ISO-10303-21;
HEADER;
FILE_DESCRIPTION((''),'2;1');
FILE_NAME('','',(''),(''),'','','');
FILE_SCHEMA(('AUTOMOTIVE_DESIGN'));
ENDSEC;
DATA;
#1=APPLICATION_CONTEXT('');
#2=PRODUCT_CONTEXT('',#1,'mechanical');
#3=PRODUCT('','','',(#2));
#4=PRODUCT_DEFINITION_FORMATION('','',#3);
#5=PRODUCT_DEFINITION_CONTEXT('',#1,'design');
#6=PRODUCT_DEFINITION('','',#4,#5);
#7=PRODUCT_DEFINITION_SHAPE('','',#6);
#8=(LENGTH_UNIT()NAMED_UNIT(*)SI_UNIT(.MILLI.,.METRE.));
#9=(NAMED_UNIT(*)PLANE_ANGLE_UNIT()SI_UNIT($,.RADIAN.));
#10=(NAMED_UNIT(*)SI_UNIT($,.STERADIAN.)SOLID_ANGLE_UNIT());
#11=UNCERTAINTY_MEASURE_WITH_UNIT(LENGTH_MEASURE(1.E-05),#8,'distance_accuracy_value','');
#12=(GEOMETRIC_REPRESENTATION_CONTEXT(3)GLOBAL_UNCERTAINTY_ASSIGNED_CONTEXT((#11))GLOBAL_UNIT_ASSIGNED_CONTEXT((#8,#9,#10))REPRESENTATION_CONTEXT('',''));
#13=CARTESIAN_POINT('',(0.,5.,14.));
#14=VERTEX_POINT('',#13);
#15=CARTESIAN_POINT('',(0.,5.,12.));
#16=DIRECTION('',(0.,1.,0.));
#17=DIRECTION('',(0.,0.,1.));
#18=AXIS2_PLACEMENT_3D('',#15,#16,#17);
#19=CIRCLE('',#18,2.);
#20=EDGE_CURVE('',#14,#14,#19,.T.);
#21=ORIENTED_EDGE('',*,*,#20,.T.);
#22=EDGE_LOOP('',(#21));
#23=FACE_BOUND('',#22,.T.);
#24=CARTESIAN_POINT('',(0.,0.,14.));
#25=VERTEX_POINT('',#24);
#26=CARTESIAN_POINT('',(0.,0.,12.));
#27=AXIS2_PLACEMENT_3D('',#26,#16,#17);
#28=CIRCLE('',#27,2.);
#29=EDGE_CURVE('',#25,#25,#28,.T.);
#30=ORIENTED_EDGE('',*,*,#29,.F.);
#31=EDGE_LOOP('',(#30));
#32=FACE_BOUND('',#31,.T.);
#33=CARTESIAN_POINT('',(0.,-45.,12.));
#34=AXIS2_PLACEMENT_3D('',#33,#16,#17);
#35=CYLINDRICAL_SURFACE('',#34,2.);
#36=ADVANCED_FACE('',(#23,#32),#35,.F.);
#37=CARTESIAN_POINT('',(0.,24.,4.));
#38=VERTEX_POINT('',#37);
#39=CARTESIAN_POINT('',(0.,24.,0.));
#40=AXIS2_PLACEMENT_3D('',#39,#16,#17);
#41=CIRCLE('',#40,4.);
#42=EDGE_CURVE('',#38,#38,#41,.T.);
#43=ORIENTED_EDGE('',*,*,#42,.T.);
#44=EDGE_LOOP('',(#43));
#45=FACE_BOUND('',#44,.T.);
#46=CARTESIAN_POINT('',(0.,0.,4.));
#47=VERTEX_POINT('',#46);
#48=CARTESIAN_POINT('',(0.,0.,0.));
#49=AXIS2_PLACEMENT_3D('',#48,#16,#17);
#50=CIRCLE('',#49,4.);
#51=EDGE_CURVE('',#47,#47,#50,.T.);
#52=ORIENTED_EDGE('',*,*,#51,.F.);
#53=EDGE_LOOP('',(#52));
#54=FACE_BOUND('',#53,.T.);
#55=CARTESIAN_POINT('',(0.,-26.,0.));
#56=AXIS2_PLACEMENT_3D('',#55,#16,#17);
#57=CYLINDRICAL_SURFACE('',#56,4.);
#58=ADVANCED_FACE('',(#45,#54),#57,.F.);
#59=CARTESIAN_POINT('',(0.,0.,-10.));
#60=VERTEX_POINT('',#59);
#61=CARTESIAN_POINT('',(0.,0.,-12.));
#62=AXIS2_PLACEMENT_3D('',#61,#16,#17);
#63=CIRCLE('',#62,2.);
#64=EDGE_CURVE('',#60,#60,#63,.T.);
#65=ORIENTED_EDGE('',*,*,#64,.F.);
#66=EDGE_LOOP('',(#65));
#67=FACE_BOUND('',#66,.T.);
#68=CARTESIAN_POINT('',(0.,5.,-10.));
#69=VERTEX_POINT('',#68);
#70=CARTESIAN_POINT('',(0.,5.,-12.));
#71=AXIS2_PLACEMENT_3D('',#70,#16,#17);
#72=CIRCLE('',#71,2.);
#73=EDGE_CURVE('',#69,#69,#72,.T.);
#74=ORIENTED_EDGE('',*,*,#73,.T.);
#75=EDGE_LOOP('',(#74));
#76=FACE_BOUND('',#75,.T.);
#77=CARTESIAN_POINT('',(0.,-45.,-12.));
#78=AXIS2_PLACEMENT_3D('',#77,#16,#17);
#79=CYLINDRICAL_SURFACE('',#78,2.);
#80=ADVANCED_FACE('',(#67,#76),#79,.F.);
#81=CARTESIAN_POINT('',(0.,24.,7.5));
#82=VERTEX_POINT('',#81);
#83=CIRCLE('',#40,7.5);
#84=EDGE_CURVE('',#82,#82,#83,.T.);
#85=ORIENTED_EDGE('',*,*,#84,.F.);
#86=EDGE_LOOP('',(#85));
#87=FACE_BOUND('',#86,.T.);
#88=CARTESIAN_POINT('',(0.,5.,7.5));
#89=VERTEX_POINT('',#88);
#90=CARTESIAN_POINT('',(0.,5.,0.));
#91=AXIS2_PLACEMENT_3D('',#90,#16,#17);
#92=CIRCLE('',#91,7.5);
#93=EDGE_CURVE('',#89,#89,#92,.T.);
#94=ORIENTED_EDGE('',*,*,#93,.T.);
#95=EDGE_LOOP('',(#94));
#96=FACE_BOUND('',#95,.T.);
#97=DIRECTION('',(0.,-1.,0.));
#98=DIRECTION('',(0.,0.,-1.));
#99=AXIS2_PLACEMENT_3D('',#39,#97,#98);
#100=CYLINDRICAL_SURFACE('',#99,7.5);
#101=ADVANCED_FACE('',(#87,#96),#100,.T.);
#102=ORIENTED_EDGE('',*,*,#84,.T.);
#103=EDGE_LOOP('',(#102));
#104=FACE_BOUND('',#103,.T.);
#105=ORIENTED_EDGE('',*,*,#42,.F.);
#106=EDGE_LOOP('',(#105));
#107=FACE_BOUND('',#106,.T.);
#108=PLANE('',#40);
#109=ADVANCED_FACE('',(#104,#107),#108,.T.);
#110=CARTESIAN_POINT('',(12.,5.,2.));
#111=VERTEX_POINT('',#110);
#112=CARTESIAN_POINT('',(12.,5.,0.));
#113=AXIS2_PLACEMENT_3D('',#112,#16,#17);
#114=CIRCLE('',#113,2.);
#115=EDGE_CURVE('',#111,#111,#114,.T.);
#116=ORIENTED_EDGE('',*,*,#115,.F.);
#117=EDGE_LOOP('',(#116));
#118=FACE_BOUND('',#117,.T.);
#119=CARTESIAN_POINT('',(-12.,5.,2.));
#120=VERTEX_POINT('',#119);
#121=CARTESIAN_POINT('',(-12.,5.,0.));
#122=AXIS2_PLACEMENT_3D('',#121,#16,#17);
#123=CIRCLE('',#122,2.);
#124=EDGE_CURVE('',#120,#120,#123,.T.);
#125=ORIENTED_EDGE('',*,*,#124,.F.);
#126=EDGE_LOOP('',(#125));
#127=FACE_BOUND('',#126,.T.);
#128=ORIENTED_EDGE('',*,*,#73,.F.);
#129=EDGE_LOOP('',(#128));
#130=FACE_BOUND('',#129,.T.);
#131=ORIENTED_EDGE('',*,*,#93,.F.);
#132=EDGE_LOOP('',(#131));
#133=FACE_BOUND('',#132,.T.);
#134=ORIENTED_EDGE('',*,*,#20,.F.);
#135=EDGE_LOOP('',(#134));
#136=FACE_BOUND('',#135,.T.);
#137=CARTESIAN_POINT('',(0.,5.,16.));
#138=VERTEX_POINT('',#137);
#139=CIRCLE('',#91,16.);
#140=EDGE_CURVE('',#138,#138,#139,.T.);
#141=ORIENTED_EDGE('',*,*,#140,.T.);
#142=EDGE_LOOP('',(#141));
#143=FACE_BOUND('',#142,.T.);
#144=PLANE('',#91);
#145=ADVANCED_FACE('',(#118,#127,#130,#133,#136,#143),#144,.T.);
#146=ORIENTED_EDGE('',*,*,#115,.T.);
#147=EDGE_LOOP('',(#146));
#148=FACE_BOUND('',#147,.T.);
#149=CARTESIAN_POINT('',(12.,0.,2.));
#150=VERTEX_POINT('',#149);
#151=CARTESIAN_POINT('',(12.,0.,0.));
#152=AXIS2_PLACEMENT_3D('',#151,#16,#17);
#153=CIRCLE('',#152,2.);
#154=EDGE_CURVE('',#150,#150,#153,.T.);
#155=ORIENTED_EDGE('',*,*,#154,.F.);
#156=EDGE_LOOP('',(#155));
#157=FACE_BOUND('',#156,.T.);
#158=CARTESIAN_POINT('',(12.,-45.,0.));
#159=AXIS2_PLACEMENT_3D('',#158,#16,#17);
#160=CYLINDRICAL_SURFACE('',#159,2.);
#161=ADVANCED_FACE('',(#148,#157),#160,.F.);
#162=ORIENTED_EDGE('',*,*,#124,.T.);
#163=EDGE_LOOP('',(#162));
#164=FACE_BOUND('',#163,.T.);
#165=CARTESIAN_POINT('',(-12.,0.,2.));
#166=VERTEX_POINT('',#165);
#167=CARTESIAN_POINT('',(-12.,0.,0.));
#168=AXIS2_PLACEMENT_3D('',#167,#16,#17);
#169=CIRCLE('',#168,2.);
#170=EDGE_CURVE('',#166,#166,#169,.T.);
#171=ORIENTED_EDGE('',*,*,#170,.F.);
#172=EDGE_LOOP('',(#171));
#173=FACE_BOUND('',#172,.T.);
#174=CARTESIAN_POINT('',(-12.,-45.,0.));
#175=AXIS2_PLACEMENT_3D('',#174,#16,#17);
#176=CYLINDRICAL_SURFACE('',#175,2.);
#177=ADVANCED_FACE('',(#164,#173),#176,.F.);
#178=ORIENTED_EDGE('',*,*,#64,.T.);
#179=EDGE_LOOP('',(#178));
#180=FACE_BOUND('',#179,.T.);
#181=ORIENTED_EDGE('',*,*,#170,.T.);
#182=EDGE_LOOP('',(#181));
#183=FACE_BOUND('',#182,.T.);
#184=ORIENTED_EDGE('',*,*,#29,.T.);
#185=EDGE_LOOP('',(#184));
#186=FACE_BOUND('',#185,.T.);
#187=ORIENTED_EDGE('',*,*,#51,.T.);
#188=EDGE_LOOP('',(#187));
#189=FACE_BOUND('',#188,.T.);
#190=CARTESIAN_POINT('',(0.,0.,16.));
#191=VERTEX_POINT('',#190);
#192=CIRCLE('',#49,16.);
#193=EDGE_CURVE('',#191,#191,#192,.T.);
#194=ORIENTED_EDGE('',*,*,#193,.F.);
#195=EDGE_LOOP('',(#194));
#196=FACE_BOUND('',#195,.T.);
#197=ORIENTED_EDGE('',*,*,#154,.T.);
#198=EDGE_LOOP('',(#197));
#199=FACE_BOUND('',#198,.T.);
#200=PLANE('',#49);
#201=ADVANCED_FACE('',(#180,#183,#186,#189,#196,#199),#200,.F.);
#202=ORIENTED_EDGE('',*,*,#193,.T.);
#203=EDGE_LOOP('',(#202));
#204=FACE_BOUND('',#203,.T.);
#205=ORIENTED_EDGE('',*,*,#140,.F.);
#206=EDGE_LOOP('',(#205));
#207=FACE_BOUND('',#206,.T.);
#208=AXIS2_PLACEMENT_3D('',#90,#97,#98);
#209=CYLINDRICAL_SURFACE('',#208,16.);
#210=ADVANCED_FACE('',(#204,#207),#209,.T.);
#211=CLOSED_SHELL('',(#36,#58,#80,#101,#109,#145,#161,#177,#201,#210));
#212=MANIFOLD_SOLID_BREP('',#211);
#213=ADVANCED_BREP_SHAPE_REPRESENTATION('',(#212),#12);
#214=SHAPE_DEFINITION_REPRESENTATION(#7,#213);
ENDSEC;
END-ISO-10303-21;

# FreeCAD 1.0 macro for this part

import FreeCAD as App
import Part
import Sketcher
Q = App.Units.Quantity

doc = App.newDocument("Part")
params = doc.addObject("Spreadsheet::Sheet", "Params")
for row, (alias, value) in enumerate([
    ("sketch1_diameter", "32 mm"),
    ("pad1_length", "5 mm"),
    ("sketch2_diameter", "15 mm"),
    ("pad2_length", "19 mm"),
    ("sketch3_diameter", "8 mm"),
    ("pocket1_length", "50 mm"),
    ("sketch4_diameter", "4 mm"),
    ("pocket2_length", "50 mm"),
], start=1):
    params.set(f"A{row}", alias)
    params.set(f"B{row}", "=" + value)
    params.setAlias(f"B{row}", alias)

body = doc.addObject("PartDesign::Body", "Body")

# Sketch on XZ plane
sketch1 = body.newObject("Sketcher::SketchObject", "Sketch")
sketch1.AttachmentSupport = (doc.getObject("XZ_Plane"), [""])
sketch1.MapMode = "FlatFace"
sketch1.addGeometry(Part.Circle(App.Vector(0, 0, 0), App.Vector(0, 0, 1), 16), False)
sketch1.addConstraint(Sketcher.Constraint("Coincident", 0, 3, -1, 1))
sketch1.addConstraint(Sketcher.Constraint("Diameter", 0, Q("32 mm")))
sketch1.setExpression("Constraints[1]", "Params.sketch1_diameter")
pad1 = body.newObject("PartDesign::Pad", "Pad")
pad1.Profile = sketch1
pad1.setExpression("Length", "Params.pad1_length")
pad1.Reversed = True

# Sketch on XZ plane
sketch2 = body.newObject("Sketcher::SketchObject", "Sketch001")
sketch2.AttachmentSupport = (doc.getObject("XZ_Plane"), [""])
sketch2.MapMode = "FlatFace"
sketch2.AttachmentOffset = App.Placement(App.Vector(0, 0, -5), App.Rotation())
sketch2.addGeometry(Part.Circle(App.Vector(0, 0, 0), App.Vector(0, 0, 1), 7.5), False)
sketch2.addConstraint(Sketcher.Constraint("Coincident", 0, 3, -1, 1))
sketch2.addConstraint(Sketcher.Constraint("Diameter", 0, Q("15 mm")))
sketch2.setExpression("Constraints[1]", "Params.sketch2_diameter")
pad2 = body.newObject("PartDesign::Pad", "Pad001")
pad2.Profile = sketch2
pad2.setExpression("Length", "Params.pad2_length")
pad2.Reversed = True

# Sketch on XZ plane
sketch3 = body.newObject("Sketcher::SketchObject", "Sketch002")
sketch3.AttachmentSupport = (doc.getObject("XZ_Plane"), [""])
sketch3.MapMode = "FlatFace"
sketch3.AttachmentOffset = App.Placement(App.Vector(0, 0, -24), App.Rotation())
sketch3.addGeometry(Part.Circle(App.Vector(0, 0, 0), App.Vector(0, 0, 1), 4), False)
sketch3.addConstraint(Sketcher.Constraint("Coincident", 0, 3, -1, 1))
sketch3.addConstraint(Sketcher.Constraint("Diameter", 0, Q("8 mm")))
sketch3.setExpression("Constraints[1]", "Params.sketch3_diameter")
pocket1 = body.newObject("PartDesign::Pocket", "Pocket")
pocket1.Profile = sketch3
pocket1.setExpression("Length", "Params.pocket1_length")
pocket1.Reversed = True

# Sketch on XZ plane
sketch4 = body.newObject("Sketcher::SketchObject", "Sketch003")
sketch4.AttachmentSupport = (doc.getObject("XZ_Plane"), [""])
sketch4.MapMode = "FlatFace"
sketch4.AttachmentOffset = App.Placement(App.Vector(0, 0, -5), App.Rotation())
sketch4.addGeometry(Part.Circle(App.Vector(0, -12, 0), App.Vector(0, 0, 1), 2), False)
sketch4.addGeometry(Part.Circle(App.Vector(0, 12, 0), App.Vector(0, 0, 1), 2), False)
sketch4.addGeometry(Part.Circle(App.Vector(-12, 0, 0), App.Vector(0, 0, 1), 2), False)
sketch4.addGeometry(Part.Circle(App.Vector(12, 0, 0), App.Vector(0, 0, 1), 2), False)
sketch4.addConstraint(Sketcher.Constraint("Equal", 0, 1))
sketch4.addConstraint(Sketcher.Constraint("Equal", 1, 2))
sketch4.addConstraint(Sketcher.Constraint("Equal", 2, 3))
sketch4.addConstraint(Sketcher.Constraint("Symmetric", 0, 3, 1, 3, -1, 1))
sketch4.addConstraint(Sketcher.Constraint("Symmetric", 2, 3, 3, 3, -1, 1))
sketch4.addConstraint(Sketcher.Constraint("PointOnObject", 0, 3, -2))
sketch4.addConstraint(Sketcher.Constraint("PointOnObject", 2, 3, -1))
sketch4.addConstraint(Sketcher.Constraint("Diameter", 0, Q("4 mm")))
sketch4.addConstraint(Sketcher.Constraint("DistanceY", 0, 3, -1, 1, Q("12 mm")))
sketch4.addConstraint(Sketcher.Constraint("DistanceX", 2, 3, -1, 1, Q("12 mm")))
sketch4.setExpression("Constraints[7]", "Params.sketch4_diameter")
pocket2 = body.newObject("PartDesign::Pocket", "Pocket001")
pocket2.Profile = sketch4
pocket2.setExpression("Length", "Params.pocket2_length")
pocket2.Reversed = True

doc.recompute()
